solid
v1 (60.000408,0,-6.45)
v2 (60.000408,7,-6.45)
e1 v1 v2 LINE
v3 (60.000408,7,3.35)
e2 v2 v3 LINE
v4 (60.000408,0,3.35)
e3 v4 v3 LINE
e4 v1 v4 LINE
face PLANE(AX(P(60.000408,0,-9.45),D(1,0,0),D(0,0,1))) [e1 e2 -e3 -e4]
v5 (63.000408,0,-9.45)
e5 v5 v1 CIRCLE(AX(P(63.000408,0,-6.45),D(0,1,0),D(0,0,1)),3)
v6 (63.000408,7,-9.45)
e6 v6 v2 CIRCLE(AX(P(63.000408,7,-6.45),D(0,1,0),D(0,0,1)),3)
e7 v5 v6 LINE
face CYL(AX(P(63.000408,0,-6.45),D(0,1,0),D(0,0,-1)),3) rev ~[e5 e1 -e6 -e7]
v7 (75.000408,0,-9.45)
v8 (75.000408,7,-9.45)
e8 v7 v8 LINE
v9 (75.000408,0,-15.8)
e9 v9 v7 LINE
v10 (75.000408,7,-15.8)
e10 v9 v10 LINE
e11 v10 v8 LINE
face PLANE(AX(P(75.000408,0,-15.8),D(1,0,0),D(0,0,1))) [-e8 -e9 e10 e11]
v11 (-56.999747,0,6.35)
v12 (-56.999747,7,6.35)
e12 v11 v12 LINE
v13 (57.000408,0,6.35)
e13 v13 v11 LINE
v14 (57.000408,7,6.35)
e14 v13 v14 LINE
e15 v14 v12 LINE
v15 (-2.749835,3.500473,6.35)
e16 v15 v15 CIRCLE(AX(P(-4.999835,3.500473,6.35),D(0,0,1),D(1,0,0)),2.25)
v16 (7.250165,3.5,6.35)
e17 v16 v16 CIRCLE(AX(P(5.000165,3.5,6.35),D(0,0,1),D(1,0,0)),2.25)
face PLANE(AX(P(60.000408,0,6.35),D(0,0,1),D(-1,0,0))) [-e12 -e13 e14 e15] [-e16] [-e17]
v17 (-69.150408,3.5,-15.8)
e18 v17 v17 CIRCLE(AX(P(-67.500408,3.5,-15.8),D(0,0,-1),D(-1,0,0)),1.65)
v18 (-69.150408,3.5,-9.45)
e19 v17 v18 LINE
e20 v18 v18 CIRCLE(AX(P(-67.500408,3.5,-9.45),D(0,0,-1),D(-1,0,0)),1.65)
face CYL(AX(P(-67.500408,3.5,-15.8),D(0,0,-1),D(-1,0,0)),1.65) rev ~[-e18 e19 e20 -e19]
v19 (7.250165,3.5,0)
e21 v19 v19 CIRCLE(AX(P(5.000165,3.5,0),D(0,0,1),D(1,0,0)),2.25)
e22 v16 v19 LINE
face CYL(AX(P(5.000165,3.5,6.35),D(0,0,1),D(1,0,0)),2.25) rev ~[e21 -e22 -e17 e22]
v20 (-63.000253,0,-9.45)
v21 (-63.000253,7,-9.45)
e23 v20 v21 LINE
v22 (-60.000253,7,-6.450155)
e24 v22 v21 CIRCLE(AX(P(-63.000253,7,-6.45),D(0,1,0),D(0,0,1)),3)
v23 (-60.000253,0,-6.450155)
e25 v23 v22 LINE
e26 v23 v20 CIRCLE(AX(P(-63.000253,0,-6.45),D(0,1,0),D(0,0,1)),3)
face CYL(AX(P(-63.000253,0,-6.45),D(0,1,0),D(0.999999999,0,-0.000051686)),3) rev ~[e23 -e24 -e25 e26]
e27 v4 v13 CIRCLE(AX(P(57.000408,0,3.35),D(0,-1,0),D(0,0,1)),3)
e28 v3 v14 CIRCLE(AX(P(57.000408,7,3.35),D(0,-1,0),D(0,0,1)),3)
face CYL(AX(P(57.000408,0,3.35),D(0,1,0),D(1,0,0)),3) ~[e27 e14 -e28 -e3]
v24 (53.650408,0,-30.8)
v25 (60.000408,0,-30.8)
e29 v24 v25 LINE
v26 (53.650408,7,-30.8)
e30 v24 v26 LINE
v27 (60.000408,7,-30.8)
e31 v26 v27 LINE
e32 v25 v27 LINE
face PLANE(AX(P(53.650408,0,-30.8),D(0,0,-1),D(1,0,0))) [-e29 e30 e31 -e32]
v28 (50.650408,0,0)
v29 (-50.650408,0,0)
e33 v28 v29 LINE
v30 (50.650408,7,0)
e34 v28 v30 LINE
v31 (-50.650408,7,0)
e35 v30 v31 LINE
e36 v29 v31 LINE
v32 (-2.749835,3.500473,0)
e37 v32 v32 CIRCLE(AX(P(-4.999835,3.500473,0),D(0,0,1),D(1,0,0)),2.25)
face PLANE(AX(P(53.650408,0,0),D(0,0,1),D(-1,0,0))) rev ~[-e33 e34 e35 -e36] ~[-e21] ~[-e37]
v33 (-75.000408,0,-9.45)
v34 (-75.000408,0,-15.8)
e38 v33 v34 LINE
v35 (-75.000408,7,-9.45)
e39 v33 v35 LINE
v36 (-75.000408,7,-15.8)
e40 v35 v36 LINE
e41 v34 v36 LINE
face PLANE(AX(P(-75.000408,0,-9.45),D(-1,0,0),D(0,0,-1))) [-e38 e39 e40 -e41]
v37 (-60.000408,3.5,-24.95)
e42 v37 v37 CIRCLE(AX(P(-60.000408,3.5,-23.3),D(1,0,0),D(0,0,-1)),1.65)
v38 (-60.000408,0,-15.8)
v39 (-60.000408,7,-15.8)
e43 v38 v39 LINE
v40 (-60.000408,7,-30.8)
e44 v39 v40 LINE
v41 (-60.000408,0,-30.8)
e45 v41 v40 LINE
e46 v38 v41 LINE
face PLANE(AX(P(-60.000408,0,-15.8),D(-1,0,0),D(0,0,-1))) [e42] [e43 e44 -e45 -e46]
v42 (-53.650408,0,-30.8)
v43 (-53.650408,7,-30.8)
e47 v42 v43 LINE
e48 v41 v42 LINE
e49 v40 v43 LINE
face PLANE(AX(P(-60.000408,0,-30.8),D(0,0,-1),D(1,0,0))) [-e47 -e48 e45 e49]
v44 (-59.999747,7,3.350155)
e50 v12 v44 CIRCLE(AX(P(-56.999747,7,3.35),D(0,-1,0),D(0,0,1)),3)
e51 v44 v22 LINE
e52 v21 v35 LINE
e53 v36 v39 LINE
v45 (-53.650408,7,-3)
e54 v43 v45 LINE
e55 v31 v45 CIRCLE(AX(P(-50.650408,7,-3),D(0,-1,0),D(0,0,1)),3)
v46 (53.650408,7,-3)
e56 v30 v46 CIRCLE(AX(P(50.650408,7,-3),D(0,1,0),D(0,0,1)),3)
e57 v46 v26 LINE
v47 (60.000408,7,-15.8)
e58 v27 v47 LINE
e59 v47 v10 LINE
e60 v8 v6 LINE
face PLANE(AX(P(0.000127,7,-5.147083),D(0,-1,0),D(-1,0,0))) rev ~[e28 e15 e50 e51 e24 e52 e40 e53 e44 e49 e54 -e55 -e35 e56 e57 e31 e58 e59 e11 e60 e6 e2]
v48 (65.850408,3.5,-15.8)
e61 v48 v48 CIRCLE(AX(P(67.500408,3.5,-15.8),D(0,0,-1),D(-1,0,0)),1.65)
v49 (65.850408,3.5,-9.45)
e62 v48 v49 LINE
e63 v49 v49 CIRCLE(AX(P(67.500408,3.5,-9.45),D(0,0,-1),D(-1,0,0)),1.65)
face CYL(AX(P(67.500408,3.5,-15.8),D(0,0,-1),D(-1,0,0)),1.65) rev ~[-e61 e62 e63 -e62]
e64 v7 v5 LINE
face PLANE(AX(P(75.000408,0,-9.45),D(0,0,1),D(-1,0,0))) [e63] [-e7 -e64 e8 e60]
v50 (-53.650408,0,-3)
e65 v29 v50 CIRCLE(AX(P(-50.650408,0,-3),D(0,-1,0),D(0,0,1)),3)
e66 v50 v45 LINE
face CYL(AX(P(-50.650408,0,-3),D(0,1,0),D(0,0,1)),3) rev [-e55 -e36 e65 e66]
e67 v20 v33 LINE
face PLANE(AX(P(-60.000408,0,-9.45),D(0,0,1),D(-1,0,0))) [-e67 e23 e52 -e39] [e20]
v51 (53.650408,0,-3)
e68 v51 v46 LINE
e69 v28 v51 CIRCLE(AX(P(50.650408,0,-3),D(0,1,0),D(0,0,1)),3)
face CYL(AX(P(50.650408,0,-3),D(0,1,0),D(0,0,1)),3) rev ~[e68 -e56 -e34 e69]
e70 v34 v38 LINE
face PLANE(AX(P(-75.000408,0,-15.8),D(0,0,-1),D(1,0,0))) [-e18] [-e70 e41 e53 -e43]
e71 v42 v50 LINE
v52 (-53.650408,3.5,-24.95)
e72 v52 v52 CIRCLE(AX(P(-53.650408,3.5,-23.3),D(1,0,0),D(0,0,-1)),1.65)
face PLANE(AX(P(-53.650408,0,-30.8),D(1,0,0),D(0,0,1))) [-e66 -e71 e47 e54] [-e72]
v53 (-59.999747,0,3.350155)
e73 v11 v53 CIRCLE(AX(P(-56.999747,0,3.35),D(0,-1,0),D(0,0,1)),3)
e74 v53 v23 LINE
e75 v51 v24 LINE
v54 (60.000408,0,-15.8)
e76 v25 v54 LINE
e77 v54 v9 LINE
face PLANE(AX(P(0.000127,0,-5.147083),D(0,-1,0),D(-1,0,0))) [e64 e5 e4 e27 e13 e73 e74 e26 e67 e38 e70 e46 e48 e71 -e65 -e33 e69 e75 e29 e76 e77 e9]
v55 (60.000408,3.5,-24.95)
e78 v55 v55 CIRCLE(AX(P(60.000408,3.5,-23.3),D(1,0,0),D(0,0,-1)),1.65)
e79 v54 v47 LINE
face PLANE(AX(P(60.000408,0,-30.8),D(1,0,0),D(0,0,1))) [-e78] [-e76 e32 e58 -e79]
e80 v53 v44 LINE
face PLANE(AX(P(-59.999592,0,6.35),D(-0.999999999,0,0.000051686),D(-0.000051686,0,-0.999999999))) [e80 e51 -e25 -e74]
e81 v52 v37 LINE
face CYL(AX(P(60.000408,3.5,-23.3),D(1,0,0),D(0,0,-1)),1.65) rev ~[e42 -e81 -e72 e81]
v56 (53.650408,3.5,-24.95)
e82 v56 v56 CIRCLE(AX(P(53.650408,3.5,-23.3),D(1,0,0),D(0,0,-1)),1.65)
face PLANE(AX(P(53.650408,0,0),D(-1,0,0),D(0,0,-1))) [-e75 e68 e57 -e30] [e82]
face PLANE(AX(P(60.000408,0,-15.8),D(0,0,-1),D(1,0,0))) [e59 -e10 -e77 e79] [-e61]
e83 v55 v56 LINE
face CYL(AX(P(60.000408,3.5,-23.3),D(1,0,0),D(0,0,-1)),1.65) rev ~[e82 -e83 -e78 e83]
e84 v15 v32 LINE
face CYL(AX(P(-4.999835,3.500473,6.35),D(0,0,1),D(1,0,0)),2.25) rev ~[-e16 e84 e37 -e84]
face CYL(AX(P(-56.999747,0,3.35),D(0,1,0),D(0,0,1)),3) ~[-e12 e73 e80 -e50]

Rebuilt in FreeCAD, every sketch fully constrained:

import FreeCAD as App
import Part
import Sketcher
from FreeCAD import Vector


def edges_at(feature, points):
    """Names of the edges that pass closest to the given points."""
    edges = feature.Shape.Edges
    near = lambda p: min(range(len(edges)), key=lambda i: edges[i].distToShape(Part.Vertex(*p))[0])
    return sorted({f"Edge{near(p) + 1}" for p in points})

doc = App.newDocument("Part")
params = doc.addObject("Spreadsheet::Sheet", "Params")
for row, (alias, value) in enumerate([
    ("sketch1_width", "15 mm"),
    ("sketch1_width2", "120 mm"),
    ("sketch1_height", "30.8 mm"),
    ("sketch1_height2", "15.8 mm"),
    ("sketch1_width3", "6.35 mm"),
    ("pad1_length", "7 mm"),
    ("sketch2_diameter", "3.3 mm"),
    ("sketch3_diameter", "3.3 mm"),
    ("pocket2_length", "6.35 mm"),
    ("fillet_radius", "3 mm"),
    ("sketch4_diameter", "4.5 mm"),
    ("pocket3_length", "6.35 mm"),
], start=1):
    params.set(f"A{row}", alias)
    params.set(f"B{row}", "=" + value)
    params.setAlias(f"B{row}", alias)

body = doc.addObject("PartDesign::Body", "Body")

# Sketch on XZ plane
sketch1 = body.newObject("Sketcher::SketchObject", "Sketch")
sketch1.AttachmentSupport = (doc.getObject("XZ_Plane"), [""])
sketch1.MapMode = "FlatFace"
sketch1.addGeometry(Part.LineSegment(Vector(54, 0, 0), Vector(-54, 0, 0)), False)
sketch1.addGeometry(Part.LineSegment(Vector(-54, 0, 0), Vector(-54, -31, 0)), False)
sketch1.addGeometry(Part.LineSegment(Vector(-54, -31, 0), Vector(-60, -31, 0)), False)
sketch1.addGeometry(Part.LineSegment(Vector(-60, -31, 0), Vector(-60, -16, 0)), False)
sketch1.addGeometry(Part.LineSegment(Vector(-60, -16, 0), Vector(-75, -16, 0)), False)
sketch1.addGeometry(Part.LineSegment(Vector(-75, -16, 0), Vector(-75, -9, 0)), False)
sketch1.addGeometry(Part.LineSegment(Vector(-75, -9, 0), Vector(-60, -9, 0)), False)
sketch1.addGeometry(Part.LineSegment(Vector(-60, -9, 0), Vector(-60, 6, 0)), False)
sketch1.addGeometry(Part.LineSegment(Vector(-60, 6, 0), Vector(60, 6, 0)), False)
sketch1.addGeometry(Part.LineSegment(Vector(60, 6, 0), Vector(60, -9, 0)), False)
sketch1.addGeometry(Part.LineSegment(Vector(60, -9, 0), Vector(75, -9, 0)), False)
sketch1.addGeometry(Part.LineSegment(Vector(75, -9, 0), Vector(75, -16, 0)), False)
sketch1.addGeometry(Part.LineSegment(Vector(75, -16, 0), Vector(60, -16, 0)), False)
sketch1.addGeometry(Part.LineSegment(Vector(60, -16, 0), Vector(60, -31, 0)), False)
sketch1.addGeometry(Part.LineSegment(Vector(60, -31, 0), Vector(54, -31, 0)), False)
sketch1.addGeometry(Part.LineSegment(Vector(54, -31, 0), Vector(54, 0, 0)), False)
sketch1.addConstraint(Sketcher.Constraint("Coincident", 0, 2, 1, 1))
sketch1.addConstraint(Sketcher.Constraint("Coincident", 1, 2, 2, 1))
sketch1.addConstraint(Sketcher.Constraint("Coincident", 2, 2, 3, 1))
sketch1.addConstraint(Sketcher.Constraint("Coincident", 3, 2, 4, 1))
sketch1.addConstraint(Sketcher.Constraint("Coincident", 4, 2, 5, 1))
sketch1.addConstraint(Sketcher.Constraint("Coincident", 5, 2, 6, 1))
sketch1.addConstraint(Sketcher.Constraint("Coincident", 6, 2, 7, 1))
sketch1.addConstraint(Sketcher.Constraint("Coincident", 7, 2, 8, 1))
sketch1.addConstraint(Sketcher.Constraint("Coincident", 8, 2, 9, 1))
sketch1.addConstraint(Sketcher.Constraint("Coincident", 9, 2, 10, 1))
sketch1.addConstraint(Sketcher.Constraint("Coincident", 10, 2, 11, 1))
sketch1.addConstraint(Sketcher.Constraint("Coincident", 11, 2, 12, 1))
sketch1.addConstraint(Sketcher.Constraint("Coincident", 12, 2, 13, 1))
sketch1.addConstraint(Sketcher.Constraint("Coincident", 13, 2, 14, 1))
sketch1.addConstraint(Sketcher.Constraint("Coincident", 14, 2, 15, 1))
sketch1.addConstraint(Sketcher.Constraint("Coincident", 15, 2, 0, 1))
sketch1.addConstraint(Sketcher.Constraint("Horizontal", 0))
sketch1.addConstraint(Sketcher.Constraint("Vertical", 1))
sketch1.addConstraint(Sketcher.Constraint("Horizontal", 2))
sketch1.addConstraint(Sketcher.Constraint("Vertical", 3))
sketch1.addConstraint(Sketcher.Constraint("Horizontal", 4))
sketch1.addConstraint(Sketcher.Constraint("Vertical", 5))
sketch1.addConstraint(Sketcher.Constraint("Horizontal", 6))
sketch1.addConstraint(Sketcher.Constraint("Horizontal", 8))
sketch1.addConstraint(Sketcher.Constraint("Vertical", 9))
sketch1.addConstraint(Sketcher.Constraint("Horizontal", 10))
sketch1.addConstraint(Sketcher.Constraint("Vertical", 11))
sketch1.addConstraint(Sketcher.Constraint("Horizontal", 12))
sketch1.addConstraint(Sketcher.Constraint("Vertical", 13))
sketch1.addConstraint(Sketcher.Constraint("Horizontal", 14))
sketch1.addConstraint(Sketcher.Constraint("Vertical", 15))
sketch1.addConstraint(Sketcher.Constraint("Symmetric", 0, 2, 15, 2, -1, 1))
sketch1.addConstraint(Sketcher.Constraint("Symmetric", 6, 2, 9, 2, -2))
sketch1.addConstraint(Sketcher.Constraint("Symmetric", 4, 2, 11, 2, -2))
sketch1.addConstraint(Sketcher.Constraint("Symmetric", 2, 2, 13, 2, -2))
sketch1.addConstraint(Sketcher.Constraint("Vertical", 3, 2, 6, 2))
sketch1.addConstraint(Sketcher.Constraint("Equal", 12, 3))
sketch1.addConstraint(Sketcher.Constraint("Equal", 14, 5))
sketch1.addConstraint(Sketcher.Constraint("DistanceX", 4, 2, 4, 1, 15.0))
sketch1.addConstraint(Sketcher.Constraint("DistanceX", 8, 1, 8, 2, 120.0))
sketch1.addConstraint(Sketcher.Constraint("DistanceY", 1, 2, 1, 1, 30.8))
sketch1.addConstraint(Sketcher.Constraint("DistanceY", 9, 2, 9, 1, 15.8))
sketch1.addConstraint(Sketcher.Constraint("DistanceX", 2, 2, 2, 1, 6.35))
sketch1.addConstraint(Sketcher.Constraint("DistanceX", 0, 2, 0, 1, 107.300817))
sketch1.setExpression("Constraints[38]", "Params.sketch1_width")
sketch1.setExpression("Constraints[39]", "Params.sketch1_width2")
sketch1.setExpression("Constraints[40]", "Params.sketch1_height")
sketch1.setExpression("Constraints[41]", "Params.sketch1_height2")
sketch1.setExpression("Constraints[42]", "Params.sketch1_width3")
pad1 = body.newObject("PartDesign::Pad", "Pad")
pad1.Profile = sketch1
pad1.setExpression("Length", "Params.pad1_length")
pad1.Reversed = True

# Sketch on YZ plane
sketch2 = body.newObject("Sketcher::SketchObject", "Sketch001")
sketch2.AttachmentSupport = (doc.getObject("YZ_Plane"), [""])
sketch2.MapMode = "FlatFace"
sketch2.AttachmentOffset = App.Placement(Vector(0, 0, 60.000408), App.Rotation())
sketch2.addGeometry(Part.Circle(Vector(3.5, -23.3, 0), Vector(0, 0, 1), 1.6), False)
sketch2.addConstraint(Sketcher.Constraint("Diameter", 0, 3.3))
sketch2.addConstraint(Sketcher.Constraint("DistanceX", -1, 1, 0, 3, 3.5))
sketch2.addConstraint(Sketcher.Constraint("DistanceY", 0, 3, -1, 1, 23.3))
sketch2.setExpression("Constraints[0]", "Params.sketch2_diameter")
pocket1 = body.newObject("PartDesign::Pocket", "Pocket")
pocket1.Profile = sketch2
pocket1.Type = "ThroughAll"

# Sketch on XY plane
sketch3 = body.newObject("Sketcher::SketchObject", "Sketch002")
sketch3.AttachmentSupport = (doc.getObject("XY_Plane"), [""])
sketch3.MapMode = "FlatFace"
sketch3.AttachmentOffset = App.Placement(Vector(0, 0, -15.8), App.Rotation())
sketch3.addGeometry(Part.Circle(Vector(67.5, 3.5, 0), Vector(0, 0, 1), 1.6), False)
sketch3.addGeometry(Part.Circle(Vector(-67.5, 3.5, 0), Vector(0, 0, 1), 1.6), False)
sketch3.addConstraint(Sketcher.Constraint("Equal", 0, 1))
sketch3.addConstraint(Sketcher.Constraint("Symmetric", 0, 3, 1, 3, -2))
sketch3.addConstraint(Sketcher.Constraint("Diameter", 0, 3.3))
sketch3.addConstraint(Sketcher.Constraint("DistanceY", -1, 1, 0, 3, 3.5))
sketch3.addConstraint(Sketcher.Constraint("DistanceX", -1, 1, 0, 3, 67.500408))
sketch3.setExpression("Constraints[2]", "Params.sketch3_diameter")
pocket2 = body.newObject("PartDesign::Pocket", "Pocket001")
pocket2.Profile = sketch3
pocket2.setExpression("Length", "Params.pocket2_length")
pocket2.Reversed = True
doc.recompute()

fillet = body.newObject("PartDesign::Fillet", "Fillet")
fillet.Base = (pocket2, edges_at(pocket2, [
    (53.65, 3.5, 0),
    (60, 3.5, -9.45),
    (60, 3.5, 6.35),
    (-60, 3.5, 6.35),
    (-60, 3.5, -9.45),
    (-53.65, 3.5, 0),
]))
fillet.setExpression("Radius", "Params.fillet_radius")

# Sketch on XY plane
sketch4 = body.newObject("Sketcher::SketchObject", "Sketch003")
sketch4.AttachmentSupport = (doc.getObject("XY_Plane"), [""])
sketch4.MapMode = "FlatFace"
sketch4.AttachmentOffset = App.Placement(Vector(0, 0, 6.35), App.Rotation())
sketch4.addGeometry(Part.Circle(Vector(5, 3.5, 0), Vector(0, 0, 1), 2.2), False)
sketch4.addGeometry(Part.Circle(Vector(-5, 3.5, 0), Vector(0, 0, 1), 2.2), False)
sketch4.addConstraint(Sketcher.Constraint("Equal", 0, 1))
sketch4.addConstraint(Sketcher.Constraint("Diameter", 0, 4.5))
sketch4.addConstraint(Sketcher.Constraint("DistanceX", 1, 3, 0, 3, 10.0))
sketch4.addConstraint(Sketcher.Constraint("DistanceY", -1, 1, 0, 3, 3.5))
sketch4.addConstraint(Sketcher.Constraint("DistanceX", -1, 1, 0, 3, 5.000165))
sketch4.addConstraint(Sketcher.Constraint("DistanceY", -1, 1, 1, 3, 3.500473))
sketch4.setExpression("Constraints[1]", "Params.sketch4_diameter")
pocket3 = body.newObject("PartDesign::Pocket", "Pocket002")
pocket3.Profile = sketch4
pocket3.setExpression("Length", "Params.pocket3_length")

doc.recompute()
